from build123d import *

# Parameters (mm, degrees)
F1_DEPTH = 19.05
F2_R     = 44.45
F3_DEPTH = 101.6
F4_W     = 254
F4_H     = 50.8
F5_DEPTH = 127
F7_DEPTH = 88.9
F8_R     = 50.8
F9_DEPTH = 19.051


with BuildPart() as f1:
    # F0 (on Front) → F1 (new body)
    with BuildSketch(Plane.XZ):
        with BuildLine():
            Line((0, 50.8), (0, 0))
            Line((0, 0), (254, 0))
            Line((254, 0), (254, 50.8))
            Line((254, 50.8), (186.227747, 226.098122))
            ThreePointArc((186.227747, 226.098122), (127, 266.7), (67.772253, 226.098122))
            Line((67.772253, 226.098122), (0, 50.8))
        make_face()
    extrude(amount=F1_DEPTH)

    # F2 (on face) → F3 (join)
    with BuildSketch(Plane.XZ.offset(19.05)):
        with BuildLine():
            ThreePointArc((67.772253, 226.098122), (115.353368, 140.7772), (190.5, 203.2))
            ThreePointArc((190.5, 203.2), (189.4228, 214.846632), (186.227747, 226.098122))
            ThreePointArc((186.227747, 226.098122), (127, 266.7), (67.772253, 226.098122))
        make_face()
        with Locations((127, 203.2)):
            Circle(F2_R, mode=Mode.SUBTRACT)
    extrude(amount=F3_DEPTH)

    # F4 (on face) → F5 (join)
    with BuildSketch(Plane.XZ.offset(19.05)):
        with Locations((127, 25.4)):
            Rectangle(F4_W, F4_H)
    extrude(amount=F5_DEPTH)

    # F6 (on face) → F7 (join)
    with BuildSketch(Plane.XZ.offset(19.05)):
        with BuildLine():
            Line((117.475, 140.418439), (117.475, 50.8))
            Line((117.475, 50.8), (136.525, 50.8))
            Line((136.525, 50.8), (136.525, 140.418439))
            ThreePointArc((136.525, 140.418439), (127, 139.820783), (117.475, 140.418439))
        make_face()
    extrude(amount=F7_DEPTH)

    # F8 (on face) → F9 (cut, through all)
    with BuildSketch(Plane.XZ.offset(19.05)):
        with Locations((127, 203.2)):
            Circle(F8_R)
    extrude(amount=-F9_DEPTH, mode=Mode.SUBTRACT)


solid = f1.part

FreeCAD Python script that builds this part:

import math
import FreeCAD as App
import Part
import Sketcher
Q = App.Units.Quantity


def add_polygon(sketch, points):
    """Adds a closed chain of lines whose ends are joined by coincident constraints."""
    first, n = sketch.GeometryCount, len(points)
    for a, b in zip(points, points[1:] + points[:1]):
        sketch.addGeometry(Part.LineSegment(App.Vector(*a, 0), App.Vector(*b, 0)), False)
    for i in range(n):
        sketch.addConstraint(Sketcher.Constraint("Coincident", first + i, 2, first + (i + 1) % n, 1))

doc = App.newDocument("Part")
body = doc.addObject("PartDesign::Body", "Body")

# Sketch on XZ plane
sketch1 = body.newObject("Sketcher::SketchObject", "Sketch")
sketch1.AttachmentSupport = (doc.getObject("XZ_Plane"), [""])
sketch1.MapMode = "FlatFace"
sketch1.addGeometry([
    Part.LineSegment(App.Vector(0, 51, 0), App.Vector(0, 0, 0)),  # 0
    Part.LineSegment(App.Vector(0, 0, 0), App.Vector(254, 0, 0)),  # 1
    Part.LineSegment(App.Vector(254, 0, 0), App.Vector(254, 51, 0)),  # 2
    Part.LineSegment(App.Vector(254, 51, 0), App.Vector(186, 226, 0)),  # 3
    Part.ArcOfCircle(Part.Circle(App.Vector(127, 203, 0), App.Vector(0, 0, 1), 64), math.radians(21), math.radians(159)),  # 4
    Part.LineSegment(App.Vector(68, 226, 0), App.Vector(0, 51, 0)),  # 5
], False)
sketch1.addConstraint([
    Sketcher.Constraint("Coincident", 0, 2, 1, 1),
    Sketcher.Constraint("Coincident", 1, 2, 2, 1),
    Sketcher.Constraint("Coincident", 2, 2, 3, 1),
    Sketcher.Constraint("Tangent", 3, 2, 4, 1),
    Sketcher.Constraint("Tangent", 4, 2, 5, 1),
    Sketcher.Constraint("Coincident", 5, 2, 0, 1),
    Sketcher.Constraint("Vertical", 0),
    Sketcher.Constraint("Horizontal", 1),
    Sketcher.Constraint("Vertical", 2),
    Sketcher.Constraint("Coincident", 0, 2, -1, 1),
    Sketcher.Constraint("Horizontal", 3, 2, 4, 2),
    Sketcher.Constraint("Horizontal", 2, 2, 5, 2),
    Sketcher.Constraint("Radius", 4, Q("2.5 in")),
    Sketcher.Constraint("DistanceX", 1, 1, 1, 2, Q("10 in")),
    Sketcher.Constraint("DistanceY", 0, 2, 0, 1, Q("2 in")),
    Sketcher.Constraint("DistanceY", -1, 1, 4, 3, Q("8 in")),
])
pad1 = body.newObject("PartDesign::Pad", "Pad")
pad1.Profile = sketch1
pad1.Length = Q("0.75 in")

# Sketch on XZ plane
sketch2 = body.newObject("Sketcher::SketchObject", "Sketch001")
sketch2.AttachmentSupport = (doc.getObject("XZ_Plane"), [""])
sketch2.MapMode = "FlatFace"
sketch2.AttachmentOffset = App.Placement(App.Vector(0, 0, 0.75 * 25.4), App.Rotation())
sketch2.addGeometry([
    Part.ArcOfCircle(Part.Circle(App.Vector(127, 203, 0), App.Vector(0, 0, 1), 64), math.radians(159), math.radians(360)),
    Part.ArcOfCircle(Part.Circle(App.Vector(127, 203, 0), App.Vector(0, 0, 1), 64), math.radians(0), math.radians(21)),
    Part.ArcOfCircle(Part.Circle(App.Vector(127, 203, 0), App.Vector(0, 0, 1), 64), math.radians(21), math.radians(159)),
    Part.Circle(App.Vector(127, 203, 0), App.Vector(0, 0, 1), 44),
], False)
sketch2.addConstraint([
    Sketcher.Constraint("Tangent", 0, 2, 1, 1),
    Sketcher.Constraint("Tangent", 1, 2, 2, 1),
    Sketcher.Constraint("Tangent", 2, 2, 0, 1),
    Sketcher.Constraint("Coincident", 3, 3, 0, 3),
    Sketcher.Constraint("Horizontal", 3, 3, 0, 2),
    Sketcher.Constraint("Horizontal", 1, 2, 2, 2),
    Sketcher.Constraint("Diameter", 3, Q("3.5 in")),
    Sketcher.Constraint("Radius", 0, Q("2.5 in")),
    Sketcher.Constraint("DistanceX", -1, 1, 0, 3, Q("5 in")),
    Sketcher.Constraint("DistanceY", -1, 1, 0, 3, Q("8 in")),
    Sketcher.Constraint("DistanceY", -1, 1, 1, 2, 226.098122),
])
pad2 = body.newObject("PartDesign::Pad", "Pad001")
pad2.Profile = sketch2
pad2.Length = Q("4 in")

# Sketch on XZ plane
sketch3 = body.newObject("Sketcher::SketchObject", "Sketch002")
sketch3.AttachmentSupport = (doc.getObject("XZ_Plane"), [""])
sketch3.MapMode = "FlatFace"
sketch3.AttachmentOffset = App.Placement(App.Vector(0, 0, 0.75 * 25.4), App.Rotation())
add_polygon(sketch3, [(0, 51), (0, 0), (254, 0), (254, 51)])  # lines 0-3
sketch3.addConstraint([
    Sketcher.Constraint("Vertical", 0),
    Sketcher.Constraint("Horizontal", 1),
    Sketcher.Constraint("Vertical", 2),
    Sketcher.Constraint("Horizontal", 3),
    Sketcher.Constraint("Coincident", 0, 2, -1, 1),
    Sketcher.Constraint("DistanceX", 1, 1, 1, 2, Q("10 in")),
    Sketcher.Constraint("DistanceY", 0, 2, 0, 1, Q("2 in")),
])
pad3 = body.newObject("PartDesign::Pad", "Pad002")
pad3.Profile = sketch3
pad3.Length = Q("5 in")

# Sketch on XZ plane
sketch4 = body.newObject("Sketcher::SketchObject", "Sketch003")
sketch4.AttachmentSupport = (doc.getObject("XZ_Plane"), [""])
sketch4.MapMode = "FlatFace"
sketch4.AttachmentOffset = App.Placement(App.Vector(0, 0, 0.75 * 25.4), App.Rotation())
sketch4.addGeometry([
    Part.LineSegment(App.Vector(117, 140, 0), App.Vector(117, 51, 0)),
    Part.LineSegment(App.Vector(117, 51, 0), App.Vector(137, 51, 0)),
    Part.LineSegment(App.Vector(137, 51, 0), App.Vector(137, 140, 0)),
    Part.ArcOfCircle(Part.Circle(App.Vector(127, 216, 0), App.Vector(0, 0, 1), 76), math.radians(-97.18), math.radians(-82.82)),
], False)
sketch4.addConstraint([
    Sketcher.Constraint("Coincident", 0, 2, 1, 1),
    Sketcher.Constraint("Coincident", 1, 2, 2, 1),
    Sketcher.Constraint("Coincident", 2, 2, 3, 2),
    Sketcher.Constraint("Coincident", 3, 1, 0, 1),
    Sketcher.Constraint("Vertical", 0),
    Sketcher.Constraint("Horizontal", 1),
    Sketcher.Constraint("Vertical", 2),
    Sketcher.Constraint("Horizontal", 2, 2, 3, 1),
    Sketcher.Constraint("DistanceX", -1, 1, 3, 3, Q("5 in")),
    Sketcher.Constraint("DistanceY", -1, 1, 0, 2, Q("2 in")),
    Sketcher.Constraint("DistanceX", 1, 1, 1, 2, Q("0.75 in")),
    Sketcher.Constraint("Radius", 3, 76.200036),
    Sketcher.Constraint("DistanceY", 0, 2, 0, 1, 89.618439),
])
pad4 = body.newObject("PartDesign::Pad", "Pad003")
pad4.Profile = sketch4
pad4.Length = Q("3.5 in")

# Sketch on XZ plane
sketch5 = body.newObject("Sketcher::SketchObject", "Sketch004")
sketch5.AttachmentSupport = (doc.getObject("XZ_Plane"), [""])
sketch5.MapMode = "FlatFace"
sketch5.AttachmentOffset = App.Placement(App.Vector(0, 0, 0.75 * 25.4), App.Rotation())
sketch5.addGeometry(Part.Circle(App.Vector(127, 203, 0), App.Vector(0, 0, 1), 51), False)
sketch5.addConstraint([
    Sketcher.Constraint("Diameter", 0, Q("4 in")),
    Sketcher.Constraint("DistanceX", -1, 1, 0, 3, Q("5 in")),
    Sketcher.Constraint("DistanceY", -1, 1, 0, 3, Q("8 in")),
])
pocket1 = body.newObject("PartDesign::Pocket", "Pocket")
pocket1.Profile = sketch5
pocket1.Type = "ThroughAll"

doc.recompute()
